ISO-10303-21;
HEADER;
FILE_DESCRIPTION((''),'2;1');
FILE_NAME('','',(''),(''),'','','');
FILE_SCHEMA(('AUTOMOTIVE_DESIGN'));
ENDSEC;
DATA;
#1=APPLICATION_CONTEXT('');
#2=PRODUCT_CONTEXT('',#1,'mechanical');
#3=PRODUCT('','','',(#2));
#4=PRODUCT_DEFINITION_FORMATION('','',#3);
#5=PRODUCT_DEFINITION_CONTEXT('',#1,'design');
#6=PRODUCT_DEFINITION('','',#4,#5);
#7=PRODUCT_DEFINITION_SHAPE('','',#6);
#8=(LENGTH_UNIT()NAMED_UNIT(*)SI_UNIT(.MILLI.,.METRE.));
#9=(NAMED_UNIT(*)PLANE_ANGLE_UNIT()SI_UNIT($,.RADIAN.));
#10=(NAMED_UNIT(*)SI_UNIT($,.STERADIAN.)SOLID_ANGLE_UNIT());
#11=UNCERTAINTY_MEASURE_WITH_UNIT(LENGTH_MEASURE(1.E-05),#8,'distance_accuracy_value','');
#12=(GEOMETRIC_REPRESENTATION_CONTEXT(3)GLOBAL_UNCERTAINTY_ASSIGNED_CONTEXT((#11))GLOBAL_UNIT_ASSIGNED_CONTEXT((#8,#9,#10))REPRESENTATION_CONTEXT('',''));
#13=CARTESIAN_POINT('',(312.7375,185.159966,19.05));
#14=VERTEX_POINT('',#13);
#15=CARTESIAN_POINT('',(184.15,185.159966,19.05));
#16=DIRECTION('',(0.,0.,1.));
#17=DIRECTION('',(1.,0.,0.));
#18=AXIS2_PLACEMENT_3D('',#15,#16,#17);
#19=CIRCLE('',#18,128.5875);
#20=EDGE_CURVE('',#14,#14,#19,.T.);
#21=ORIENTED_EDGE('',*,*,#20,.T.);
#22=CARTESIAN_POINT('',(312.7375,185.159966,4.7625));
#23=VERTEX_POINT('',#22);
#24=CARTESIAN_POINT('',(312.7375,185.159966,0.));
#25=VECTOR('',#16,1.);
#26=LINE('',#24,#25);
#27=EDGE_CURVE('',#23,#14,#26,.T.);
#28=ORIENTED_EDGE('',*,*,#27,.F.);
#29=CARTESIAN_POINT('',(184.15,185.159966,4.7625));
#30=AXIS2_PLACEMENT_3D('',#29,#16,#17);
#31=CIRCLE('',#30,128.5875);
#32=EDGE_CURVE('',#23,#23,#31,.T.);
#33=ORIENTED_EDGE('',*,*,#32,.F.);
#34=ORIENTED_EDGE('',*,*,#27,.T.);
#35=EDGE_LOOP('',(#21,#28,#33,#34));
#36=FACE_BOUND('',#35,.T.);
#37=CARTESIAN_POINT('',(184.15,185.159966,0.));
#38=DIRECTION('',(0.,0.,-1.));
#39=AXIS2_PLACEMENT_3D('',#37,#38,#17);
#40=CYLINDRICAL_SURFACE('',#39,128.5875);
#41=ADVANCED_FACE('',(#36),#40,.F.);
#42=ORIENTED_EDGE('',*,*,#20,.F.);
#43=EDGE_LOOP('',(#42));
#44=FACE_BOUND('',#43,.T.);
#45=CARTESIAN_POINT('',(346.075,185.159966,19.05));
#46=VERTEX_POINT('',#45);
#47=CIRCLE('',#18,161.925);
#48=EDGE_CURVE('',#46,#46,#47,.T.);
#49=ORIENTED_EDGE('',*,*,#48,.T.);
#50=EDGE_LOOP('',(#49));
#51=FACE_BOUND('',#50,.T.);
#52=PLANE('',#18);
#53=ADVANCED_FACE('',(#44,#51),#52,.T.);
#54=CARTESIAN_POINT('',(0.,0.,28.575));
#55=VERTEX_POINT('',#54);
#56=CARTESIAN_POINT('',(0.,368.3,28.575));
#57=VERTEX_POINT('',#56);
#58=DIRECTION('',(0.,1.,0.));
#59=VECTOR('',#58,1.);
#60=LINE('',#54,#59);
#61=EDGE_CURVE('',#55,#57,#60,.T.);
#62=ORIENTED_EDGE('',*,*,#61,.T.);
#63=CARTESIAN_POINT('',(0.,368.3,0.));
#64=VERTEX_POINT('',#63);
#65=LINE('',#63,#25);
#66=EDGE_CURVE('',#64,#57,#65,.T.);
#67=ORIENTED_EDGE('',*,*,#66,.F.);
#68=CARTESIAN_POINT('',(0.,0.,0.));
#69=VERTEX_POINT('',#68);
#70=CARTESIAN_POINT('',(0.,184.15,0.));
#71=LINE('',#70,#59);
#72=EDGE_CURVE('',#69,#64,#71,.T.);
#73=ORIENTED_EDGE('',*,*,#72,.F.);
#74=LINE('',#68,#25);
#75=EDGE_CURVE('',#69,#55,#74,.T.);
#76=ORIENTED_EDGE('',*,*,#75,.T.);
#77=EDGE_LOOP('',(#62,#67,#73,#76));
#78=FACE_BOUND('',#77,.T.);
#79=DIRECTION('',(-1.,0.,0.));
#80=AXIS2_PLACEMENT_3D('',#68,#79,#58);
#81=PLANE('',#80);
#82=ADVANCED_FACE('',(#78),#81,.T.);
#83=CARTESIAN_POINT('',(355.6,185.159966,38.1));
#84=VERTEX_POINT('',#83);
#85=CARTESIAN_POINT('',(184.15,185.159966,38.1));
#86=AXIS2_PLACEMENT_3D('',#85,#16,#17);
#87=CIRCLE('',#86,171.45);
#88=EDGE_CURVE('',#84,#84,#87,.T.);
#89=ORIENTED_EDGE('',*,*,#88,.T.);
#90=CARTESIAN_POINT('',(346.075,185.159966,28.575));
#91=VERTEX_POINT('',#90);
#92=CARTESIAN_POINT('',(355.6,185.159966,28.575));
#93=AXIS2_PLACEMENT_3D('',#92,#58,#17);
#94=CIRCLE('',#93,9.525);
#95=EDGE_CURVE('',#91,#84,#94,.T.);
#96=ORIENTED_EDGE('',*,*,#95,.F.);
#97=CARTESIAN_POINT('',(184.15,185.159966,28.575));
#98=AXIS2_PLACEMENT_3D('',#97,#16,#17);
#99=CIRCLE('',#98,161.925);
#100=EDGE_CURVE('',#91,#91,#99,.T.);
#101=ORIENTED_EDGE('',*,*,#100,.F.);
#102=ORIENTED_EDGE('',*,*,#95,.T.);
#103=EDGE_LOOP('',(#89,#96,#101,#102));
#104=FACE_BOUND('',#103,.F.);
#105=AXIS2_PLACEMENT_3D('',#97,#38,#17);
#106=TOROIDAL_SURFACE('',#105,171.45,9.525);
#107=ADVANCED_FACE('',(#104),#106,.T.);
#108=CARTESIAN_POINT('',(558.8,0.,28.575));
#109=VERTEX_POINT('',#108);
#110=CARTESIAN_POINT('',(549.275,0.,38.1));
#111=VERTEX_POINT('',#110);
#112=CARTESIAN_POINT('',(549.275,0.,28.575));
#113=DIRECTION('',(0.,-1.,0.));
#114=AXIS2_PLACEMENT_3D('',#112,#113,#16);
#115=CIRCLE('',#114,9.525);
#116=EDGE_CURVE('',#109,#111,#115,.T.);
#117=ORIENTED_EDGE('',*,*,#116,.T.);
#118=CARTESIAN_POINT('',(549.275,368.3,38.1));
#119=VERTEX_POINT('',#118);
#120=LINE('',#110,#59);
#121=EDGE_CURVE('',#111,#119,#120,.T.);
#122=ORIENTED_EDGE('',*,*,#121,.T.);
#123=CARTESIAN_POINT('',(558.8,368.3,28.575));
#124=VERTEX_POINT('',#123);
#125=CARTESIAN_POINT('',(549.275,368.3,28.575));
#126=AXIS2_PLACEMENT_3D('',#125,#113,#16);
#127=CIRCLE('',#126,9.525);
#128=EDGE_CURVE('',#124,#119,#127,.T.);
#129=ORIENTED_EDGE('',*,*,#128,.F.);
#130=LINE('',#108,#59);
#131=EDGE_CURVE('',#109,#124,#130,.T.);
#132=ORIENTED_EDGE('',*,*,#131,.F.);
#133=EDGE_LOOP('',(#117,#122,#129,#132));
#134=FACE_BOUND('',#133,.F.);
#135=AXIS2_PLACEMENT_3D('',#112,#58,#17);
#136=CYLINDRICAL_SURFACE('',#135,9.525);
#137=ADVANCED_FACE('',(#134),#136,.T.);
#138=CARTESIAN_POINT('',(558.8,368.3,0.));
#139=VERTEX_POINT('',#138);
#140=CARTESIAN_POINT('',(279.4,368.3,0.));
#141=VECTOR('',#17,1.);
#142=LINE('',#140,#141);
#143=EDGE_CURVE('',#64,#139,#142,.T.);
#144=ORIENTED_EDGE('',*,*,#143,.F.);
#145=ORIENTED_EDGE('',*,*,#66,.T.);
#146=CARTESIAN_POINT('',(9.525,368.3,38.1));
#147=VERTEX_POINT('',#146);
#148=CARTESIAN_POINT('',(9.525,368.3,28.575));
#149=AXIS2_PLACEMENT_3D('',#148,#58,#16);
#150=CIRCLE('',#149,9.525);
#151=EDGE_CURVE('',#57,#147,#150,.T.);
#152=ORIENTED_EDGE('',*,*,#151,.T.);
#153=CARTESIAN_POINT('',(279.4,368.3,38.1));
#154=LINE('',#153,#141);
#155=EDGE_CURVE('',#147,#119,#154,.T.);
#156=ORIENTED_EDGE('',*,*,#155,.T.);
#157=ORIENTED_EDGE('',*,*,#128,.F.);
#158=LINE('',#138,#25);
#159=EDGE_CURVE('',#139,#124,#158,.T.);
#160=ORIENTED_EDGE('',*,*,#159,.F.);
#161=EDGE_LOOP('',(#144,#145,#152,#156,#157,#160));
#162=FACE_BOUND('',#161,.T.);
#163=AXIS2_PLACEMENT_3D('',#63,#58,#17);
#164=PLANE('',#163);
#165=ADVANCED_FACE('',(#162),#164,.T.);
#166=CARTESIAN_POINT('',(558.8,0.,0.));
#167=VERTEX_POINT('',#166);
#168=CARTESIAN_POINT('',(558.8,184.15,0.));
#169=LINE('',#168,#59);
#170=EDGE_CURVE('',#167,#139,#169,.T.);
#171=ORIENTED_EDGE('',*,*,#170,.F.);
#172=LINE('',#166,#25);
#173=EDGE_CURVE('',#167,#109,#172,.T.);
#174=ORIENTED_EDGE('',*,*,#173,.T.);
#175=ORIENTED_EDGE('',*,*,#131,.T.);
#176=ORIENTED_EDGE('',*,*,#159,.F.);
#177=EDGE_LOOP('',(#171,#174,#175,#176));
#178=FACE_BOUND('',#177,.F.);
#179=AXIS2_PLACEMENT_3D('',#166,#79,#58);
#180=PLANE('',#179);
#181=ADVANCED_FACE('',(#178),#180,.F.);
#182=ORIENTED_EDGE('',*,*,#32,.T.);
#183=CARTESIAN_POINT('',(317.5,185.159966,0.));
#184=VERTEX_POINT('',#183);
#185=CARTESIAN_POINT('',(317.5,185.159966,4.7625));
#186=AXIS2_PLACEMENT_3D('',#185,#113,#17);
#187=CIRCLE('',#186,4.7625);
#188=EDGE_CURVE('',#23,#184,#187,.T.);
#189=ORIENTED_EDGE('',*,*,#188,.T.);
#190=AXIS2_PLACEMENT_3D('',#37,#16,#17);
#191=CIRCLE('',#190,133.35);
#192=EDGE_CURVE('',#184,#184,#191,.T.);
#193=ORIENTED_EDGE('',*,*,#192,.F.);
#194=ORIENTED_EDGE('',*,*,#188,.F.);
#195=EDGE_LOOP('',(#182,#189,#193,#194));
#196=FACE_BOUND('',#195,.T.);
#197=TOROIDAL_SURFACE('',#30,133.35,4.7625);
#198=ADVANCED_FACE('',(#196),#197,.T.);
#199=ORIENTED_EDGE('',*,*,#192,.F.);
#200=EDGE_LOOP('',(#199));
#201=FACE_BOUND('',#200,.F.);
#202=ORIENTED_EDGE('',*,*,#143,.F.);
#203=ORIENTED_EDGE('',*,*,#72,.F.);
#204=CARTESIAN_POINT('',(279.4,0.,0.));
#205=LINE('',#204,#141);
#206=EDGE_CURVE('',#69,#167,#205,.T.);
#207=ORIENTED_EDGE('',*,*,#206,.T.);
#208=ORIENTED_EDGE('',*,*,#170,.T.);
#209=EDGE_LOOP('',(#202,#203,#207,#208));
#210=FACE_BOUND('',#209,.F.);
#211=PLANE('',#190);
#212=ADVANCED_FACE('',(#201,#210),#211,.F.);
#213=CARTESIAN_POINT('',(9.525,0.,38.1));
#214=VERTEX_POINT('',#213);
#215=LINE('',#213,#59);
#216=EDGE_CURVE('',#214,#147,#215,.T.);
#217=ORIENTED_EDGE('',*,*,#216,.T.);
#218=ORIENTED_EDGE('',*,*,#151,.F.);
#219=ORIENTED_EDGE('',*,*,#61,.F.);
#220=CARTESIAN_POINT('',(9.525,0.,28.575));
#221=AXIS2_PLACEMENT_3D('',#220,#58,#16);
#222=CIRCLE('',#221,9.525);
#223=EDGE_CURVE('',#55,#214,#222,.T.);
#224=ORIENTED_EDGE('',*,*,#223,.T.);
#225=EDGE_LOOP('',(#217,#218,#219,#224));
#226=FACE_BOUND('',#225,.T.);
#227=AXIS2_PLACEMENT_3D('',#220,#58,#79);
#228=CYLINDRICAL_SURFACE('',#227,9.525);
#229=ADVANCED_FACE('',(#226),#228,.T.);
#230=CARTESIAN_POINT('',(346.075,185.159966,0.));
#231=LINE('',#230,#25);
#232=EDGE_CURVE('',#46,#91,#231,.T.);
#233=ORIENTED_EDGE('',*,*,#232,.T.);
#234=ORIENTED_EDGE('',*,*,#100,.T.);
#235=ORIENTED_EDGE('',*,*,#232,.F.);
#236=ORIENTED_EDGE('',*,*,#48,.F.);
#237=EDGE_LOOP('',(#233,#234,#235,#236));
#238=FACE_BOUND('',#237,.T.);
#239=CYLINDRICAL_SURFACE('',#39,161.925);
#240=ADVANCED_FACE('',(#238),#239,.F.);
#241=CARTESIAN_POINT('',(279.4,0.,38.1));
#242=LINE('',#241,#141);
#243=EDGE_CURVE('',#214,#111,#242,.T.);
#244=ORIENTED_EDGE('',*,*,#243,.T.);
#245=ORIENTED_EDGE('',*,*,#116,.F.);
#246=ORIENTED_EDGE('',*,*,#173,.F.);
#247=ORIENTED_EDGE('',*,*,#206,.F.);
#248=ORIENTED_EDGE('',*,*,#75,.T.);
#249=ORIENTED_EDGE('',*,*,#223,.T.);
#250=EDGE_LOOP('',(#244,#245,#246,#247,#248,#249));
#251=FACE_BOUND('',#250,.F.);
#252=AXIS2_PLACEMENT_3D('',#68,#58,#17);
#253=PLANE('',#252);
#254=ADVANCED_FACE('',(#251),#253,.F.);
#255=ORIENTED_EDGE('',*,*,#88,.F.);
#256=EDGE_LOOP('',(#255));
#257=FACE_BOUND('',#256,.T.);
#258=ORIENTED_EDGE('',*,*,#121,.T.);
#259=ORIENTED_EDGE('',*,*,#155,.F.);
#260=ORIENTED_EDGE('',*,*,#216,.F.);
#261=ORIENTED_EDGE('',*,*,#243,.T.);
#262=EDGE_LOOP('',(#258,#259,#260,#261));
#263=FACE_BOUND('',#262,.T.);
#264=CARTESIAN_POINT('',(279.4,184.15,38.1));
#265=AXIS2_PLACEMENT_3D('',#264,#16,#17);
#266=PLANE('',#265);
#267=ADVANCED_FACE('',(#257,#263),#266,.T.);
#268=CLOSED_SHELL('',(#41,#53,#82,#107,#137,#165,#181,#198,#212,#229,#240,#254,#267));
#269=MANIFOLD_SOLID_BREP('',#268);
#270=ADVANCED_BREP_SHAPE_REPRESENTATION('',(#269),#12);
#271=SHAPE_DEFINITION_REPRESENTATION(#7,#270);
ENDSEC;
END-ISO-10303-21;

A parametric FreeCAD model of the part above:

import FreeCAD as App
import Part
import Sketcher
Q = App.Units.Quantity


def edges_at(feature, points):
    """Names of the edges that pass closest to the given points."""
    edges = feature.Shape.Edges
    near = lambda p: min(range(len(edges)), key=lambda i: edges[i].distToShape(Part.Vertex(*p))[0])
    return sorted({f"Edge{near(p) + 1}" for p in points})

doc = App.newDocument("Part")
body = doc.addObject("PartDesign::Body", "Body")

# Sketch on XY plane
sketch1 = doc.addObject("Sketcher::SketchObject", "Sketch")
body.addObject(sketch1)
sketch1.AttachmentSupport = (doc.XY_Plane, [""])
sketch1.MapMode = "FlatFace"
sketch1.addGeometry([
    Part.LineSegment(App.Vector(0, 368, 0), App.Vector(0, 0, 0)),  # 0
    Part.LineSegment(App.Vector(0, 0, 0), App.Vector(559, 0, 0)),  # 1
    Part.LineSegment(App.Vector(559, 0, 0), App.Vector(559, 368, 0)),  # 2
    Part.LineSegment(App.Vector(559, 368, 0), App.Vector(0, 368, 0)),  # 3
    Part.Circle(App.Vector(184, 185, 0), App.Vector(0, 0, 1), 162),  # 4
], False)
sketch1.addConstraint([
    Sketcher.Constraint("Coincident", 0, 2, 1, 1),
    Sketcher.Constraint("Coincident", 1, 2, 2, 1),
    Sketcher.Constraint("Coincident", 2, 2, 3, 1),
    Sketcher.Constraint("Coincident", 3, 2, 0, 1),
    Sketcher.Constraint("Vertical", 0),
    Sketcher.Constraint("Horizontal", 1),
    Sketcher.Constraint("Vertical", 2),
    Sketcher.Constraint("Horizontal", 3),
    Sketcher.Constraint("Coincident", 0, 2, -1, 1),
    Sketcher.Constraint("Diameter", 4, Q("12.75 in")),
    Sketcher.Constraint("DistanceX", 1, 1, 1, 2, Q("22 in")),
    Sketcher.Constraint("DistanceY", 0, 2, 0, 1, Q("14.5 in")),
    Sketcher.Constraint("DistanceX", -1, 1, 4, 3, Q("7.25 in")),
    Sketcher.Constraint("DistanceY", -1, 1, 4, 3, Q("185.159966 mm")),
])
pad1 = doc.addObject("PartDesign::Pad", "Pad")
body.addObject(pad1)
pad1.Profile = sketch1
pad1.Length = Q("1.5 in")

# Sketch on XY plane
sketch2 = doc.addObject("Sketcher::SketchObject", "Sketch001")
body.addObject(sketch2)
sketch2.AttachmentSupport = (doc.XY_Plane, [""])
sketch2.MapMode = "FlatFace"
sketch2.addGeometry([
    Part.Circle(App.Vector(184, 185, 0), App.Vector(0, 0, 1), 162),
    Part.Circle(App.Vector(184, 185, 0), App.Vector(0, 0, 1), 129),
], False)
sketch2.addConstraint([
    Sketcher.Constraint("Coincident", 1, 3, 0, 3),
    Sketcher.Constraint("Diameter", 0, Q("12.75 in")),
    Sketcher.Constraint("Diameter", 1, Q("10.125 in")),
    Sketcher.Constraint("DistanceX", -1, 1, 0, 3, Q("7.25 in")),
    Sketcher.Constraint("DistanceY", -1, 1, 0, 3, Q("185.159966 mm")),
])
pad2 = doc.addObject("PartDesign::Pad", "Pad001")
body.addObject(pad2)
pad2.Profile = sketch2
pad2.Length = Q("0.75 in")
doc.recompute()

fillet = doc.addObject("PartDesign::Fillet", "Fillet")
body.addObject(fillet)
fillet.Base = (pad2, edges_at(pad2, [(22.225, 185.16, 38.1)]))
fillet.Radius = Q("0.375 in")
doc.recompute()

fillet2 = doc.addObject("PartDesign::Fillet", "Fillet001")
body.addObject(fillet2)
fillet2.Base = (fillet, edges_at(fillet, [(55.562, 185.16, 0)]))
fillet2.Radius = Q("0.1875 in")
doc.recompute()

fillet3 = doc.addObject("PartDesign::Fillet", "Fillet002")
body.addObject(fillet3)
fillet3.Base = (fillet2, edges_at(fillet2, [(558.8, 184.15, 38.1), (0, 184.15, 38.1)]))
fillet3.Radius = Q("0.375 in")

doc.recompute()
